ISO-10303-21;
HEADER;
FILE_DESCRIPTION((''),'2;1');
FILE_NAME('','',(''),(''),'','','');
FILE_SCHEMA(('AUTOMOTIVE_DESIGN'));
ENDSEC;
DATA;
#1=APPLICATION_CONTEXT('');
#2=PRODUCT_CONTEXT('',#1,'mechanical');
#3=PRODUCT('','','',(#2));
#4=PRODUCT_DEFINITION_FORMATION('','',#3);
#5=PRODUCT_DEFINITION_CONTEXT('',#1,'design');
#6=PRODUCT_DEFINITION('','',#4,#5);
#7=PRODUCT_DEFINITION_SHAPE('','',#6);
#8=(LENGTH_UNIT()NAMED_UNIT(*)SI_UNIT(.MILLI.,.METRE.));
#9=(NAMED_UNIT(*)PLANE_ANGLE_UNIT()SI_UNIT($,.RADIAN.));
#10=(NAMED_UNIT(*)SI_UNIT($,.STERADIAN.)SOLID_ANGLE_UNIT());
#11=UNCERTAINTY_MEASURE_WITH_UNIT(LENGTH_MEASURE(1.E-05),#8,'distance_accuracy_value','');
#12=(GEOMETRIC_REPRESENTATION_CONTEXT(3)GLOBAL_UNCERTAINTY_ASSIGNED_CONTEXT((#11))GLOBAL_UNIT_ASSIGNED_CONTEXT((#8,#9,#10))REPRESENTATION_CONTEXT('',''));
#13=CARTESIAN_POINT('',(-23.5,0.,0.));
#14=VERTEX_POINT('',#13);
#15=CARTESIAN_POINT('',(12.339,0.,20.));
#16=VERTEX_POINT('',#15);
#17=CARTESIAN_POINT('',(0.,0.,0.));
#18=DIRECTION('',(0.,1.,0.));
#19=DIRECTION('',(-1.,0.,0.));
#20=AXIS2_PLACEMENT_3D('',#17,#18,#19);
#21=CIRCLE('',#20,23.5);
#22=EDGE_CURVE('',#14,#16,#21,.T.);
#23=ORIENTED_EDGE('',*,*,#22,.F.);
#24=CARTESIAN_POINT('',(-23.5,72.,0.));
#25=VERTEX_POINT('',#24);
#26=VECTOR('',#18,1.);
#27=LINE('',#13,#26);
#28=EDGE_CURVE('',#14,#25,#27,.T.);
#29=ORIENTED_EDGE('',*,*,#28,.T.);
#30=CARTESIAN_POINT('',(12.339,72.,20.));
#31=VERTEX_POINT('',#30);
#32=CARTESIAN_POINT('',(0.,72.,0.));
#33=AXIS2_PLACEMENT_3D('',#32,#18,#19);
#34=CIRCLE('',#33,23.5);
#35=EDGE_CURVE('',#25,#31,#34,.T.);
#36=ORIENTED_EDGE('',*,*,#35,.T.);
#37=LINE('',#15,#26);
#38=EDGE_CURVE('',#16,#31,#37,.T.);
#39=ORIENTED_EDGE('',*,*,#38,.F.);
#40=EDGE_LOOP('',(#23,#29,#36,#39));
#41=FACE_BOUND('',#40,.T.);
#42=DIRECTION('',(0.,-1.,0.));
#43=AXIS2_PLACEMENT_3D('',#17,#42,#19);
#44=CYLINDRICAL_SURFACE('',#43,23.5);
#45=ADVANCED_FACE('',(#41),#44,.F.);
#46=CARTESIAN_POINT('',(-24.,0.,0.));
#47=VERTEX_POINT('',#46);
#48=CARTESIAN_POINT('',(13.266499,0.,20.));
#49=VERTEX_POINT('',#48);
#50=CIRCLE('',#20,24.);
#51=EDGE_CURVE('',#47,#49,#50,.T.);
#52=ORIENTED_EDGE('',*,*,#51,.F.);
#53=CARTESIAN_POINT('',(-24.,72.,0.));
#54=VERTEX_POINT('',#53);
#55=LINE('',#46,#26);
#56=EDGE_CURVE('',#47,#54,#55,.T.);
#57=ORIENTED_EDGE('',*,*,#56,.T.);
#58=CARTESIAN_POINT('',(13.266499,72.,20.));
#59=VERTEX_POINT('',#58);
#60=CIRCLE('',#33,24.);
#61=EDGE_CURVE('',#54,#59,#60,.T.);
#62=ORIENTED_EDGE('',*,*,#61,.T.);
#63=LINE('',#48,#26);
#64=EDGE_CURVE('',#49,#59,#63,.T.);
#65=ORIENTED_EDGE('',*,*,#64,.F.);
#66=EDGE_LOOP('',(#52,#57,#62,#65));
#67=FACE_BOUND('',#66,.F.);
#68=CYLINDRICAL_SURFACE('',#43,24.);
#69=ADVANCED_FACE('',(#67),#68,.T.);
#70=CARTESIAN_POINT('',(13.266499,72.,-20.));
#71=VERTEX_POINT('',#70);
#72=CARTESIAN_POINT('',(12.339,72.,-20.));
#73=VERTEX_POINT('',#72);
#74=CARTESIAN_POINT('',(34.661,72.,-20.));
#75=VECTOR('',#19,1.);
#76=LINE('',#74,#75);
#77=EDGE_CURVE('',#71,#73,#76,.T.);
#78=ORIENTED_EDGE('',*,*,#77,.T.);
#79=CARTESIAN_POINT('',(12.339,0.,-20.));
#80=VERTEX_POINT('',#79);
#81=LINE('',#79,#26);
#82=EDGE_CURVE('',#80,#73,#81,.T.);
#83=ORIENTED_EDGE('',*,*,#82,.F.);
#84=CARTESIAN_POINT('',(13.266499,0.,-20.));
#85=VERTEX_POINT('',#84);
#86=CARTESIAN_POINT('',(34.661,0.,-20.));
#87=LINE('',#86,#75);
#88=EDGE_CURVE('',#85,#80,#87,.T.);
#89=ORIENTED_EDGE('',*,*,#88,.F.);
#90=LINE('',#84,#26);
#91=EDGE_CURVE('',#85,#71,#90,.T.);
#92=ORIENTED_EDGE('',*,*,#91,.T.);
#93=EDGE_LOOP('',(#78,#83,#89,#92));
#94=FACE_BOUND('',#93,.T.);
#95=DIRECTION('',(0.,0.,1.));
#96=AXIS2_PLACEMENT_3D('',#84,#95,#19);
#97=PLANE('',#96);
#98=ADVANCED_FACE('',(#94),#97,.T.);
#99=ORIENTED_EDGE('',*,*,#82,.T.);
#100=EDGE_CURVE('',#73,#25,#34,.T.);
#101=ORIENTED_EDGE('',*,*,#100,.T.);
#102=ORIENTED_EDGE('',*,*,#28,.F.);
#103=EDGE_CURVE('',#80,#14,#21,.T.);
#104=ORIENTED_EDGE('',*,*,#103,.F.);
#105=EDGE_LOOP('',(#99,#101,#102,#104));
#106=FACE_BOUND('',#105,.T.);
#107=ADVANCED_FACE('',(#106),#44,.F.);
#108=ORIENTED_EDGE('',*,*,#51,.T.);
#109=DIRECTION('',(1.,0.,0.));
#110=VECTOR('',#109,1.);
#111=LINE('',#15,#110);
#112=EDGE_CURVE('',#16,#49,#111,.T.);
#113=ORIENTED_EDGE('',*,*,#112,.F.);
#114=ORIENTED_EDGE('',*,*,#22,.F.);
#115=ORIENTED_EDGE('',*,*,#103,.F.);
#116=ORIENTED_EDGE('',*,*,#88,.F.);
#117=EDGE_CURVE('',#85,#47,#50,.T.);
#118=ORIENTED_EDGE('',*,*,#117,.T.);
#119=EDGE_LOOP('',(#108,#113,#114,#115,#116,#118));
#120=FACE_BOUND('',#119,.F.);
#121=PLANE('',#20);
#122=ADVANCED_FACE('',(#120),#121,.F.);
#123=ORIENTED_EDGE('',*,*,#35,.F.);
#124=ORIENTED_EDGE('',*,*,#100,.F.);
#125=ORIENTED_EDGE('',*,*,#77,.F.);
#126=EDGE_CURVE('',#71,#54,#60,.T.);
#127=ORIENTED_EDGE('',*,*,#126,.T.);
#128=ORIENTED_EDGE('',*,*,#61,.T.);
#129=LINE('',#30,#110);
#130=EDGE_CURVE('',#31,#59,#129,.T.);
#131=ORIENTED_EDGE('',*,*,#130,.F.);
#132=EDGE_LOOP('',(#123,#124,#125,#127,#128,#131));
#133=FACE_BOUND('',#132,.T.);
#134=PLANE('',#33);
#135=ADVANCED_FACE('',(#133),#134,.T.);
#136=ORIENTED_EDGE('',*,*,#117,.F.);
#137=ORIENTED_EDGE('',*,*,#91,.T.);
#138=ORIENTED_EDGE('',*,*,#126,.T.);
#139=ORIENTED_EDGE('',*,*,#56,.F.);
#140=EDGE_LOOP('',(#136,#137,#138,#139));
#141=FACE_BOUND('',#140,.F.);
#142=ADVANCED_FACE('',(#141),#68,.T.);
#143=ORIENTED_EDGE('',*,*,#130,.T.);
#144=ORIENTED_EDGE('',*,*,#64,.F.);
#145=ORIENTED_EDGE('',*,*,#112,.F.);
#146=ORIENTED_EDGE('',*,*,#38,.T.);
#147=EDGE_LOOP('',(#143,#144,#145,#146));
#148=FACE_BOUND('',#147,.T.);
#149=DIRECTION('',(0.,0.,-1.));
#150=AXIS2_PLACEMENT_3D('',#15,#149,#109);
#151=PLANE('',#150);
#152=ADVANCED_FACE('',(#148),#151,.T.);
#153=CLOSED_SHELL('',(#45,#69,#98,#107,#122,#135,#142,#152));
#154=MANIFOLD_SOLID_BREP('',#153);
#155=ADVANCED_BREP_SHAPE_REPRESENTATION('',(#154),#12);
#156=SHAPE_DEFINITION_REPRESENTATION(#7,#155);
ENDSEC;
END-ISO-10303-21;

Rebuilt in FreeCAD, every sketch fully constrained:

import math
import FreeCAD as App
import Part
import Sketcher
from FreeCAD import Vector
Q = App.Units.Quantity

doc = App.newDocument("Part")
body = doc.addObject("PartDesign::Body", "Body")

# Sketch on XZ plane
sketch1 = doc.addObject("Sketcher::SketchObject", "Sketch")
body.addObject(sketch1)
sketch1.AttachmentSupport = (doc.XZ_Plane, [""])
sketch1.MapMode = "FlatFace"
sketch1.addGeometry([
    Part.ArcOfCircle(Part.Circle(Vector(0, 0, 0), Vector(0, 0, 1), 23.5), math.radians(58), math.radians(302)),
    Part.LineSegment(Vector(12.3, -20, 0), Vector(13.3, -20, 0)),
    Part.ArcOfCircle(Part.Circle(Vector(0, 0, 0), Vector(0, 0, 1), 24), math.radians(56), math.radians(304)),
    Part.LineSegment(Vector(13.3, 20, 0), Vector(12.3, 20, 0)),
], False)
sketch1.addConstraint([
    Sketcher.Constraint("Coincident", 0, 2, 1, 1),
    Sketcher.Constraint("Coincident", 1, 2, 2, 2),
    Sketcher.Constraint("Coincident", 2, 1, 3, 1),
    Sketcher.Constraint("Coincident", 3, 2, 0, 1),
    Sketcher.Constraint("Horizontal", 1),
    Sketcher.Constraint("Horizontal", 3),
    Sketcher.Constraint("Coincident", 0, 3, -1, 1),
    Sketcher.Constraint("Coincident", 2, 3, -1, 1),
    Sketcher.Constraint("Vertical", 1, 2, 2, 1),
    Sketcher.Constraint("Radius", 0, Q("23.5 mm")),
    Sketcher.Constraint("Radius", 2, Q("24 mm")),
    Sketcher.Constraint("DistanceY", 1, 2, 2, 1, Q("40 mm")),
])
pad1 = doc.addObject("PartDesign::Pad", "Pad")
body.addObject(pad1)
pad1.Profile = sketch1
pad1.Length = 72
pad1.Reversed = True

doc.recompute()
